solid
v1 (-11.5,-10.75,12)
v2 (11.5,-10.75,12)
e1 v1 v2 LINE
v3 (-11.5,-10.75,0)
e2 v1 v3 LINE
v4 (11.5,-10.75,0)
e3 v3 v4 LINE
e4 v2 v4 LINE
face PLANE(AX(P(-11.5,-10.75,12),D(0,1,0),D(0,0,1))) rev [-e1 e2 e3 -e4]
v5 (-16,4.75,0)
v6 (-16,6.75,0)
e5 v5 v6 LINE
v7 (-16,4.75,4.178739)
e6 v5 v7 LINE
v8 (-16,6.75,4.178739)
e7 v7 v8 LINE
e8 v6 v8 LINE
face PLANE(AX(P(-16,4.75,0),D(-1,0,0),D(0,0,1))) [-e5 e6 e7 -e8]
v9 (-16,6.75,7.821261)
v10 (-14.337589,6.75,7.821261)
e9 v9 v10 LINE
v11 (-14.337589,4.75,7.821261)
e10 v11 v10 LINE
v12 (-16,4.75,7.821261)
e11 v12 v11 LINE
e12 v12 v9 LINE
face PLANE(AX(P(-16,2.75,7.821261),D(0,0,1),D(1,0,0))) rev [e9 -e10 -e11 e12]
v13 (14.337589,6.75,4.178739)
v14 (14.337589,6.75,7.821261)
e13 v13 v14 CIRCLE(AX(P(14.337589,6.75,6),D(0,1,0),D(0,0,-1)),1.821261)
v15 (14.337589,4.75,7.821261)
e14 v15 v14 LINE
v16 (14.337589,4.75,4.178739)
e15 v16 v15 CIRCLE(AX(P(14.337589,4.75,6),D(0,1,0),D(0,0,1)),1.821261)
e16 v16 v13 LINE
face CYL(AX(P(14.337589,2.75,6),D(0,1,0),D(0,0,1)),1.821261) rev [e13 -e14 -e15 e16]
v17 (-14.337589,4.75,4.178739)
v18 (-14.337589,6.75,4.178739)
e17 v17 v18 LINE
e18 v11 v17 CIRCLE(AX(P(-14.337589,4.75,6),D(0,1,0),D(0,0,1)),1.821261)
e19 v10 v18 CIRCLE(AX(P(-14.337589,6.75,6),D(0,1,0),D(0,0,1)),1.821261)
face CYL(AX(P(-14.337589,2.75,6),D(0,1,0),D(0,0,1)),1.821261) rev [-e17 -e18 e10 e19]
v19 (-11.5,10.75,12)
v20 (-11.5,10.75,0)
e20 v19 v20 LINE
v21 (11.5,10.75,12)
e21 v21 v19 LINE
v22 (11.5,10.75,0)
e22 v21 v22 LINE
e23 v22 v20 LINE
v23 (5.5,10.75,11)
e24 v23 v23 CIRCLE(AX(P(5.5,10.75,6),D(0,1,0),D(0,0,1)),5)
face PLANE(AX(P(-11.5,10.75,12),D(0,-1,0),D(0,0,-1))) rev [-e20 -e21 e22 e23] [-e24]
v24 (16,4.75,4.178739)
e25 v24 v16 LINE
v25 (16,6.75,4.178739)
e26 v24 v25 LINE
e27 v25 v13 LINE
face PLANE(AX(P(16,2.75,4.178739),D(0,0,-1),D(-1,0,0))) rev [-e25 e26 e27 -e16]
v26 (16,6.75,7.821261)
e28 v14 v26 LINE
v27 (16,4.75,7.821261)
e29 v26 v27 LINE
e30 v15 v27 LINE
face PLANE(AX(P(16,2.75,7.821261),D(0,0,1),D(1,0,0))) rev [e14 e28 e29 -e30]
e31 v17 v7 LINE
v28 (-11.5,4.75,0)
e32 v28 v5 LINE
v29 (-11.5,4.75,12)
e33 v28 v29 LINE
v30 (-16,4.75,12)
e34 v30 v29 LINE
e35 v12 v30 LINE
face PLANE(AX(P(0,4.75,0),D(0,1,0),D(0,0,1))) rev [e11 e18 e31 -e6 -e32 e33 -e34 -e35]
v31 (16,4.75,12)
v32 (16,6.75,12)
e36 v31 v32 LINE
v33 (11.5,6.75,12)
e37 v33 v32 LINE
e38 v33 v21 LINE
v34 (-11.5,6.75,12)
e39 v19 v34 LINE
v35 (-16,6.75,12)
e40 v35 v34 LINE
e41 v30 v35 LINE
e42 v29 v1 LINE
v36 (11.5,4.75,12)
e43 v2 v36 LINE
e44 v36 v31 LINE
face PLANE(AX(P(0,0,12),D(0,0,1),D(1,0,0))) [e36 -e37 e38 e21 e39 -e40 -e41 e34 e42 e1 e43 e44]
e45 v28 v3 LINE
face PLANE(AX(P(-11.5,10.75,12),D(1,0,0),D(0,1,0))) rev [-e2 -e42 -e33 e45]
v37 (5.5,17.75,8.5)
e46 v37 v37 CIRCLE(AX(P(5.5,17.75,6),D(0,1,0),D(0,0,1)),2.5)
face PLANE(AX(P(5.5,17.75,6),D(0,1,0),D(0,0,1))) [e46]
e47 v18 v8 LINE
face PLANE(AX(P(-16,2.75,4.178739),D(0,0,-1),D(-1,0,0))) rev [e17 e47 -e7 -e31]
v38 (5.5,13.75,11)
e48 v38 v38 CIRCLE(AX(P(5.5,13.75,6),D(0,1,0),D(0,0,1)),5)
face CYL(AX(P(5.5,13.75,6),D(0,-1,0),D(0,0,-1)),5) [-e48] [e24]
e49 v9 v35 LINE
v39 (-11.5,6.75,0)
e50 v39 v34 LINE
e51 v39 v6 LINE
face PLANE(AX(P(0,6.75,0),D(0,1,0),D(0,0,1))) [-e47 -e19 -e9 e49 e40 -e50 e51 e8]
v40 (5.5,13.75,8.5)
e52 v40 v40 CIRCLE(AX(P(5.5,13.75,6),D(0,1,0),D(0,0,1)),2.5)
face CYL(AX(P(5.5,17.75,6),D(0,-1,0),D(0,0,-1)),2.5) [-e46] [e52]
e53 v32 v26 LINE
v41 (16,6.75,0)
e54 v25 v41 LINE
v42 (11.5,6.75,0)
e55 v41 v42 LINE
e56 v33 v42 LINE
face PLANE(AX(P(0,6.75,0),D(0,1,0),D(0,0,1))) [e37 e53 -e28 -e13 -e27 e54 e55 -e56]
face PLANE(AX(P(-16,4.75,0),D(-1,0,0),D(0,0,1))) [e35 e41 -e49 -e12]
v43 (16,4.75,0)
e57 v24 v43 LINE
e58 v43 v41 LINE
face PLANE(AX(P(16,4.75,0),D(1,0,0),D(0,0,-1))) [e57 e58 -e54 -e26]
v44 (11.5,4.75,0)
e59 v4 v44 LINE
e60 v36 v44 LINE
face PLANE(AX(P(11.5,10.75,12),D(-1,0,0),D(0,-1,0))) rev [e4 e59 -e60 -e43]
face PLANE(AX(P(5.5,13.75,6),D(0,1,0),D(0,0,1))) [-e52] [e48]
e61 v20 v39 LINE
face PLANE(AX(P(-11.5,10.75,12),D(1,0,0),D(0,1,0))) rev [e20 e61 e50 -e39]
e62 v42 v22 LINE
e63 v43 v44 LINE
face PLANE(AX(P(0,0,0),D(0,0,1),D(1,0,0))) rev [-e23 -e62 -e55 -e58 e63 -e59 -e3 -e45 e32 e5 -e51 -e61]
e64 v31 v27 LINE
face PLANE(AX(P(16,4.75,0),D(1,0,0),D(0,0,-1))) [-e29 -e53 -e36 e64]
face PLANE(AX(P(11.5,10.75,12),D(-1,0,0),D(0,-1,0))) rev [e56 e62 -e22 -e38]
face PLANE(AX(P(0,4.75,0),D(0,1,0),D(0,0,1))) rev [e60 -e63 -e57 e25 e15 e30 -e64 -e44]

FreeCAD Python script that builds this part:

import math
import FreeCAD as App
import Part
import Sketcher


def add_polygon(sketch, points):
    """Adds a closed chain of lines whose ends are joined by coincident constraints."""
    first, n = sketch.GeometryCount, len(points)
    for a, b in zip(points, points[1:] + points[:1]):
        sketch.addGeometry(Part.LineSegment(App.Vector(*a, 0), App.Vector(*b, 0)), False)
    for i in range(n):
        sketch.addConstraint(Sketcher.Constraint("Coincident", first + i, 2, first + (i + 1) % n, 1))

doc = App.newDocument("Part")
params = doc.addObject("Spreadsheet::Sheet", "Params")
for row, (alias, value) in enumerate([
    ("sketch1_width", "23 mm"),
    ("sketch1_height", "21.5 mm"),
    ("pad1_length", "12 mm"),
    ("sketch2_width", "32 mm"),
    ("sketch2_height", "12 mm"),
    ("pad2_length", "2 mm"),
    ("sketch3_diameter", "10 mm"),
    ("pad3_length", "3 mm"),
    ("sketch4_diameter", "5 mm"),
    ("pad4_length", "4 mm"),
    ("pocket1_length", "4 mm"),
], start=1):
    params.set(f"A{row}", alias)
    params.set(f"B{row}", "=" + value)
    params.setAlias(f"B{row}", alias)

body = doc.addObject("PartDesign::Body", "Body")

# Sketch on XY plane
sketch1 = body.newObject("Sketcher::SketchObject", "Sketch")
sketch1.AttachmentSupport = (doc.getObject("XY_Plane"), [""])
sketch1.MapMode = "FlatFace"
add_polygon(sketch1, [(-11.5, 10.75), (-11.5, -10.75), (11.5, -10.75), (11.5, 10.75)])  # lines 0-3
sketch1.addConstraint([
    Sketcher.Constraint("Vertical", 0),
    Sketcher.Constraint("Horizontal", 1),
    Sketcher.Constraint("Vertical", 2),
    Sketcher.Constraint("Horizontal", 3),
    Sketcher.Constraint("Symmetric", 0, 2, 2, 2, -1, 1),
    Sketcher.Constraint("DistanceX", 1, 1, 1, 2, 23.0),
    Sketcher.Constraint("DistanceY", 0, 2, 0, 1, 21.5),
])
sketch1.setExpression("Constraints[9]", "Params.sketch1_width")
sketch1.setExpression("Constraints[10]", "Params.sketch1_height")
pad1 = body.newObject("PartDesign::Pad", "Pad")
pad1.Profile = sketch1
pad1.setExpression("Length", "Params.pad1_length")

# Sketch on XZ plane
sketch2 = body.newObject("Sketcher::SketchObject", "Sketch001")
sketch2.AttachmentSupport = (doc.getObject("XZ_Plane"), [""])
sketch2.MapMode = "FlatFace"
sketch2.AttachmentOffset = App.Placement(App.Vector(0, 0, -6.75), App.Rotation())
add_polygon(sketch2, [(-16, 0), (-16, 12), (16, 12), (16, 0)])  # lines 0-3
sketch2.addConstraint([
    Sketcher.Constraint("Vertical", 0),
    Sketcher.Constraint("Horizontal", 1),
    Sketcher.Constraint("Vertical", 2),
    Sketcher.Constraint("Horizontal", 3),
    Sketcher.Constraint("Symmetric", 2, 2, 3, 2, -1, 1),
    Sketcher.Constraint("DistanceX", 1, 1, 1, 2, 32.0),
    Sketcher.Constraint("DistanceY", 0, 1, 0, 2, 12.0),
])
sketch2.setExpression("Constraints[9]", "Params.sketch2_width")
sketch2.setExpression("Constraints[10]", "Params.sketch2_height")
pad2 = body.newObject("PartDesign::Pad", "Pad001")
pad2.Profile = sketch2
pad2.setExpression("Length", "Params.pad2_length")

# Sketch on XZ plane
sketch3 = body.newObject("Sketcher::SketchObject", "Sketch002")
sketch3.AttachmentSupport = (doc.getObject("XZ_Plane"), [""])
sketch3.MapMode = "FlatFace"
sketch3.AttachmentOffset = App.Placement(App.Vector(0, 0, -10.75), App.Rotation())
sketch3.addGeometry(Part.Circle(App.Vector(5.5, 6, 0), App.Vector(0, 0, 1), 5), False)
sketch3.addConstraint([
    Sketcher.Constraint("Diameter", 0, 10.0),
    Sketcher.Constraint("DistanceY", -1, 1, 0, 3, 6.0),
    Sketcher.Constraint("DistanceX", -1, 1, 0, 3, 5.5),
])
sketch3.setExpression("Constraints[0]", "Params.sketch3_diameter")
pad3 = body.newObject("PartDesign::Pad", "Pad002")
pad3.Profile = sketch3
pad3.setExpression("Length", "Params.pad3_length")
pad3.Reversed = True

# Sketch on XZ plane
sketch4 = body.newObject("Sketcher::SketchObject", "Sketch003")
sketch4.AttachmentSupport = (doc.getObject("XZ_Plane"), [""])
sketch4.MapMode = "FlatFace"
sketch4.AttachmentOffset = App.Placement(App.Vector(0, 0, -13.75), App.Rotation())
sketch4.addGeometry(Part.Circle(App.Vector(5.5, 6, 0), App.Vector(0, 0, 1), 2.5), False)
sketch4.addConstraint([
    Sketcher.Constraint("Diameter", 0, 5.0),
    Sketcher.Constraint("DistanceY", -1, 1, 0, 3, 6.0),
    Sketcher.Constraint("DistanceX", -1, 1, 0, 3, 5.5),
])
sketch4.setExpression("Constraints[0]", "Params.sketch4_diameter")
pad4 = body.newObject("PartDesign::Pad", "Pad003")
pad4.Profile = sketch4
pad4.setExpression("Length", "Params.pad4_length")
pad4.Reversed = True

# Sketch on XZ plane
sketch5 = body.newObject("Sketcher::SketchObject", "Sketch004")
sketch5.AttachmentSupport = (doc.getObject("XZ_Plane"), [""])
sketch5.MapMode = "FlatFace"
sketch5.AttachmentOffset = App.Placement(App.Vector(0, 0, -6.75), App.Rotation())
sketch5.addGeometry([
    Part.LineSegment(App.Vector(-14.337589, 4.178739, 0), App.Vector(-16, 4.178739, 0)),  # 0
    Part.ArcOfCircle(Part.Circle(App.Vector(-16, 6, 0), App.Vector(0, 0, 1), 1.821261), math.radians(90), math.radians(270)),  # 1
    Part.LineSegment(App.Vector(-16, 7.821261, 0), App.Vector(-14.337589, 7.821261, 0)),  # 2
    Part.ArcOfCircle(Part.Circle(App.Vector(-14.337589, 6, 0), App.Vector(0, 0, 1), 1.821261), math.radians(-90), math.radians(90)),  # 3
    Part.LineSegment(App.Vector(16, 4.178739, 0), App.Vector(14.337589, 4.178739, 0)),  # 4
    Part.ArcOfCircle(Part.Circle(App.Vector(14.337589, 6, 0), App.Vector(0, 0, 1), 1.821261), math.radians(90), math.radians(270)),  # 5
    Part.LineSegment(App.Vector(14.337589, 7.821261, 0), App.Vector(16, 7.821261, 0)),  # 6
    Part.ArcOfCircle(Part.Circle(App.Vector(16, 6, 0), App.Vector(0, 0, 1), 1.821261), math.radians(-90), math.radians(90)),  # 7
], False)
sketch5.addConstraint([
    Sketcher.Constraint("Tangent", 0, 2, 1, 2),
    Sketcher.Constraint("Tangent", 1, 1, 2, 1),
    Sketcher.Constraint("Tangent", 2, 2, 3, 2),
    Sketcher.Constraint("Tangent", 3, 1, 0, 1),
    Sketcher.Constraint("Tangent", 4, 2, 5, 2),
    Sketcher.Constraint("Tangent", 5, 1, 6, 1),
    Sketcher.Constraint("Tangent", 6, 2, 7, 2),
    Sketcher.Constraint("Tangent", 7, 1, 4, 1),
    Sketcher.Constraint("Horizontal", 0),
    Sketcher.Constraint("Horizontal", 2),
    Sketcher.Constraint("Horizontal", 4),
    Sketcher.Constraint("Horizontal", 6),
    Sketcher.Constraint("Equal", 3, 5),
    Sketcher.Constraint("Symmetric", 3, 3, 5, 3, -2),
    Sketcher.Constraint("Equal", 2, 4),
    Sketcher.Constraint("DistanceX", 1, 3, -1, 1, 16.0),
    Sketcher.Constraint("DistanceY", -1, 1, 1, 3, 6.0),
    Sketcher.Constraint("Radius", 1, 1.821261),
    Sketcher.Constraint("DistanceX", 0, 2, 0, 1, 1.662411),
])
pocket1 = body.newObject("PartDesign::Pocket", "Pocket")
pocket1.Profile = sketch5
pocket1.setExpression("Length", "Params.pocket1_length")
pocket1.Reversed = True

doc.recompute()
